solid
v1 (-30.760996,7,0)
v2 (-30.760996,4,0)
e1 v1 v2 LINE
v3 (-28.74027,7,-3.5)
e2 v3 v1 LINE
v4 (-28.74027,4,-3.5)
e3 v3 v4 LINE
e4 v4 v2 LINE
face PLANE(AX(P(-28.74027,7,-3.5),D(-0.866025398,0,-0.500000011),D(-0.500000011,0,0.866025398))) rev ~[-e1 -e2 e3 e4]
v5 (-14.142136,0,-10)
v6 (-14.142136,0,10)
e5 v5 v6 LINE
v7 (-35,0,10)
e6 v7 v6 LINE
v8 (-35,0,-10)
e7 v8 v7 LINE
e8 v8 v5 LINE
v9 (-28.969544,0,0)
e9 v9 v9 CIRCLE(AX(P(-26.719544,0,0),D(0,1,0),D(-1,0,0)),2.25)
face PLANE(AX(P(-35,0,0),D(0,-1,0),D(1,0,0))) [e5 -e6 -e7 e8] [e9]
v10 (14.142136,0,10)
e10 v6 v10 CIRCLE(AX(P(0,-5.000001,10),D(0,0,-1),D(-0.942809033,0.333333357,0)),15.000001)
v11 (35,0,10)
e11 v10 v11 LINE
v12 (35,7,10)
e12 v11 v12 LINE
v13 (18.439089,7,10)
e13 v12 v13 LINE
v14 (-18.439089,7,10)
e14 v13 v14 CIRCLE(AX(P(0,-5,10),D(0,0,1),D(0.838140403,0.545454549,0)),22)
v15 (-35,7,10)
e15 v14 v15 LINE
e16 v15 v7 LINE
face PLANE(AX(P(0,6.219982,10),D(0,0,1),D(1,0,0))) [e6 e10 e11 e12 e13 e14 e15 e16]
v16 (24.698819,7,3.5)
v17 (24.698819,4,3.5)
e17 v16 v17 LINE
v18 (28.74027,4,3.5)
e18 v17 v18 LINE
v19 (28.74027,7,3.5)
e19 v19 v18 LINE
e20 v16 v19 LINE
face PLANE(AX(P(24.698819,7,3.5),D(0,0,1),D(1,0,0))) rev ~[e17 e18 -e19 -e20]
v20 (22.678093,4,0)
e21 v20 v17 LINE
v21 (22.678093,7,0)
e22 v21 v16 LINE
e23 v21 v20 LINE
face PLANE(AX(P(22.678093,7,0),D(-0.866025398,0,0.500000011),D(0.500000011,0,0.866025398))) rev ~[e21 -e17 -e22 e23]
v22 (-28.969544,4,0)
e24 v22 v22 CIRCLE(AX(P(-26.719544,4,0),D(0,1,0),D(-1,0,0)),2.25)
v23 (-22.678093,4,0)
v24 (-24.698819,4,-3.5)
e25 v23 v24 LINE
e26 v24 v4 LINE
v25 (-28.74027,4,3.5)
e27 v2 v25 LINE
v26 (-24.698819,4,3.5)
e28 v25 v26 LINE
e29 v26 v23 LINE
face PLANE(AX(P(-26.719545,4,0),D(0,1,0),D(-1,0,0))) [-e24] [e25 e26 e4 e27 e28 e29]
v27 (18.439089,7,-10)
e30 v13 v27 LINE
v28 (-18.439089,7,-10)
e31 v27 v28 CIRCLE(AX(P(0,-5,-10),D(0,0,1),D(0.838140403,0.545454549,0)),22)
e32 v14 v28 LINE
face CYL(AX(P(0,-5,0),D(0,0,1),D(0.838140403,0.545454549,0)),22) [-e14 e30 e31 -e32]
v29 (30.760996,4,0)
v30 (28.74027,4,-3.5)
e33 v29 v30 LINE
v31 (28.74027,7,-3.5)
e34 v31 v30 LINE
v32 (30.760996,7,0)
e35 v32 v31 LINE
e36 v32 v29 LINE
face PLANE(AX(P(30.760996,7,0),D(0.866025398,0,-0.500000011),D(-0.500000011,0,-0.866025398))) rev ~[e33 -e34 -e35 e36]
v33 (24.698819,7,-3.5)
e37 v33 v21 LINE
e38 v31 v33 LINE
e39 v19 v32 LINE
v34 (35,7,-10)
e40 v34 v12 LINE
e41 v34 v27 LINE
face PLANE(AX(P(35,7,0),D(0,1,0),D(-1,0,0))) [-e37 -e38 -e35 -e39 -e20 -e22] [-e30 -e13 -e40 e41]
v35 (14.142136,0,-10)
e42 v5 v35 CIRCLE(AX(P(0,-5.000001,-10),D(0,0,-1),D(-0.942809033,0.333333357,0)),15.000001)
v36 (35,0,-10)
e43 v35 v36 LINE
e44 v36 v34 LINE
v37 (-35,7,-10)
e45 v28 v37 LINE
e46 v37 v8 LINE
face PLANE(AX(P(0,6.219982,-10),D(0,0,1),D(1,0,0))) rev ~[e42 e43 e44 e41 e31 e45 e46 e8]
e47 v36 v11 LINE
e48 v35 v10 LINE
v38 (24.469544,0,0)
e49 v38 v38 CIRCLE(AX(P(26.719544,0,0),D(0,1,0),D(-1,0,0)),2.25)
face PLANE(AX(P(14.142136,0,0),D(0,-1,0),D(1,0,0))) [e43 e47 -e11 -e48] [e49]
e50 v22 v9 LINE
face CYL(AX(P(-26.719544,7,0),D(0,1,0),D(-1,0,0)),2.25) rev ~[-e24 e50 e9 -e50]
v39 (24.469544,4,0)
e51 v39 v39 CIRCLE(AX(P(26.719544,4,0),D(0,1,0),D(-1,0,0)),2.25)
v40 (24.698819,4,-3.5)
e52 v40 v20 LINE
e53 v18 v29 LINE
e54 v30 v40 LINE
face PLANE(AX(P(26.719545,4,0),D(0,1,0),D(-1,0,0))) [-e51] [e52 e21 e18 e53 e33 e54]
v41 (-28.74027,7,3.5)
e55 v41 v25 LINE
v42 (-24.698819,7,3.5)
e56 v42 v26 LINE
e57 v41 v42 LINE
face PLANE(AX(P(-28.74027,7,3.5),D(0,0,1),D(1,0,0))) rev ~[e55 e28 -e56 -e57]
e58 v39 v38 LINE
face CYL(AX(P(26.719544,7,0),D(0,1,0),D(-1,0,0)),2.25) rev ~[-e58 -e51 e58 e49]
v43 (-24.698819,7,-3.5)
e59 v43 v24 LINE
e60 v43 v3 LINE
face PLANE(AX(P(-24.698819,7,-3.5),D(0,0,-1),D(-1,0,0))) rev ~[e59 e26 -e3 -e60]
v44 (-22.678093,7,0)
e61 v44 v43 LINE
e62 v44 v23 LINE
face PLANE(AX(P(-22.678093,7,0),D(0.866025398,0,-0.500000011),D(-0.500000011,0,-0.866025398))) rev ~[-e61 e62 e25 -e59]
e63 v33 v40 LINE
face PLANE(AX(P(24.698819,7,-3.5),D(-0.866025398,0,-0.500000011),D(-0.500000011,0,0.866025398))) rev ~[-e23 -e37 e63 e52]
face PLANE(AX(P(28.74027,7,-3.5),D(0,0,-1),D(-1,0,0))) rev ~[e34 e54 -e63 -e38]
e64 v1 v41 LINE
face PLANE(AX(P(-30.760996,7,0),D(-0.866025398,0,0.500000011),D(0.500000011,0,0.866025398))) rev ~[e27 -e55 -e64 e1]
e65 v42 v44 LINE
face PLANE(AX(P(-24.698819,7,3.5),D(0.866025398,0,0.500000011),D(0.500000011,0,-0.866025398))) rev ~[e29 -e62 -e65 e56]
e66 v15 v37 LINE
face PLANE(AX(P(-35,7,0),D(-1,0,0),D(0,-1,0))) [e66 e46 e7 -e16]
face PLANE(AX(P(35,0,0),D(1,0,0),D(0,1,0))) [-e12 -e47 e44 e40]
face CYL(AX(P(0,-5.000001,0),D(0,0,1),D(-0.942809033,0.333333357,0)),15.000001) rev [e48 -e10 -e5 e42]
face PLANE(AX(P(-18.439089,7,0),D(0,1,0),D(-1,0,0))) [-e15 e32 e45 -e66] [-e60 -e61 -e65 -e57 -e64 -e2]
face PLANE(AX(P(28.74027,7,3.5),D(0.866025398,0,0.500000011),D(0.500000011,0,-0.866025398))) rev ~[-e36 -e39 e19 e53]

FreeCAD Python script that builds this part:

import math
import FreeCAD as App
import Part
import Sketcher
Q = App.Units.Quantity


def add_polygon(sketch, points):
    """Adds a closed chain of lines whose ends are joined by coincident constraints."""
    first, n = sketch.GeometryCount, len(points)
    for a, b in zip(points, points[1:] + points[:1]):
        sketch.addGeometry(Part.LineSegment(App.Vector(*a, 0), App.Vector(*b, 0)), False)
    for i in range(n):
        sketch.addConstraint(Sketcher.Constraint("Coincident", first + i, 2, first + (i + 1) % n, 1))

doc = App.newDocument("Part")
body = doc.addObject("PartDesign::Body", "Body")

sketch1 = doc.addObject("Sketcher::SketchObject", "Sketch")
body.addObject(sketch1)
sketch1.AttachmentSupport = (doc.XY_Plane, [""])
sketch1.MapMode = "FlatFace"
sketch1.addGeometry([
    Part.LineSegment(App.Vector(-35, 7, 0), App.Vector(-35, 0, 0)),
    Part.LineSegment(App.Vector(-35, 0, 0), App.Vector(-14, 0, 0)),
    Part.ArcOfCircle(Part.Circle(App.Vector(0, -5, 0), App.Vector(0, 0, 1), 15), math.radians(19), math.radians(161)),
    Part.LineSegment(App.Vector(14, 0, 0), App.Vector(35, 0, 0)),
    Part.LineSegment(App.Vector(35, 0, 0), App.Vector(35, 7, 0)),
    Part.LineSegment(App.Vector(35, 7, 0), App.Vector(18, 7, 0)),
    Part.ArcOfCircle(Part.Circle(App.Vector(0, -5, 0), App.Vector(0, 0, 1), 22), math.radians(33), math.radians(147)),
    Part.LineSegment(App.Vector(-18, 7, 0), App.Vector(-35, 7, 0)),
], False)
sketch1.addConstraint([
    Sketcher.Constraint("Coincident", 0, 2, 1, 1),
    Sketcher.Constraint("Coincident", 1, 2, 2, 2),
    Sketcher.Constraint("Coincident", 2, 1, 3, 1),
    Sketcher.Constraint("Coincident", 3, 2, 4, 1),
    Sketcher.Constraint("Coincident", 4, 2, 5, 1),
    Sketcher.Constraint("Coincident", 5, 2, 6, 1),
    Sketcher.Constraint("Coincident", 6, 2, 7, 1),
    Sketcher.Constraint("Coincident", 7, 2, 0, 1),
    Sketcher.Constraint("Vertical", 0),
    Sketcher.Constraint("Horizontal", 1),
    Sketcher.Constraint("Horizontal", 3),
    Sketcher.Constraint("Vertical", 4),
    Sketcher.Constraint("Horizontal", 5),
    Sketcher.Constraint("Horizontal", 7),
    Sketcher.Constraint("Coincident", 6, 3, 2, 3),
    Sketcher.Constraint("Symmetric", 1, 2, 2, 1, -1, 1),
    Sketcher.Constraint("Symmetric", 0, 2, 3, 2, -2),
    Sketcher.Constraint("Horizontal", 5, 2, 6, 2),
    Sketcher.Constraint("Radius", 2, 15.000001),
    Sketcher.Constraint("Radius", 6, 22.0),
    Sketcher.Constraint("DistanceY", 0, 2, 0, 1, 7.0),
    Sketcher.Constraint("DistanceY", 2, 3, -1, 1, 5.000001),
    Sketcher.Constraint("DistanceX", 0, 2, -1, 1, 35.0),
])
pad1 = doc.addObject("PartDesign::Pad", "Pad")
body.addObject(pad1)
pad1.Profile = sketch1
pad1.Length = 20
pad1.Midplane = True

sketch2 = doc.addObject("Sketcher::SketchObject", "Sketch001")
body.addObject(sketch2)
sketch2.AttachmentSupport = (doc.XZ_Plane, [""])
sketch2.MapMode = "FlatFace"
sketch2.AttachmentOffset = App.Placement(App.Vector(0, 0, -7), App.Rotation())
sketch2.addGeometry([
    Part.Circle(App.Vector(26.7, 0, 0), App.Vector(0, 0, 1), 2.2),
    Part.Circle(App.Vector(-26.7, 0, 0), App.Vector(0, 0, 1), 2.2),
], False)
sketch2.addConstraint([
    Sketcher.Constraint("Equal", 0, 1),
    Sketcher.Constraint("Symmetric", 0, 3, 1, 3, -1, 1),
    Sketcher.Constraint("PointOnObject", 0, 3, -1),
    Sketcher.Constraint("Diameter", 0, 4.5),
    Sketcher.Constraint("DistanceX", -1, 1, 0, 3, 26.719544),
])
pocket1 = doc.addObject("PartDesign::Pocket", "Pocket")
body.addObject(pocket1)
pocket1.Profile = sketch2
pocket1.Length = 25
pocket1.Reversed = True

sketch3 = doc.addObject("Sketcher::SketchObject", "Sketch002")
body.addObject(sketch3)
sketch3.AttachmentSupport = (doc.XZ_Plane, [""])
sketch3.MapMode = "FlatFace"
sketch3.AttachmentOffset = App.Placement(App.Vector(0, 0, -7), App.Rotation())
add_polygon(sketch3, [(28.7, 3.5), (30.8, 0), (28.7, -3.5), (24.7, -3.5), (22.7, 0), (24.7, 3.5)])
sketch3.addGeometry(Part.Circle(App.Vector(26.7, 0, 0), App.Vector(0, 0, 1), 2.2), False)
add_polygon(sketch3, [(-28.7, -3.5), (-30.8, 0), (-28.7, 3.5), (-24.7, 3.5), (-22.7, 0), (-24.7, -3.5)])
sketch3.addConstraint([
    Sketcher.Constraint("Horizontal", 2),
    Sketcher.Constraint("Horizontal", 5),
    Sketcher.Constraint("Horizontal", 9),
    Sketcher.Constraint("Horizontal", 12),
    Sketcher.Constraint("Symmetric", 0, 2, 7, 2, -1, 1),
    Sketcher.Constraint("Symmetric", 1, 2, 8, 2, -1, 1),
    Sketcher.Constraint("Symmetric", 3, 2, 10, 2, -1, 1),
    Sketcher.Constraint("Symmetric", 4, 2, 11, 2, -1, 1),
    Sketcher.Constraint("Symmetric", 5, 2, 8, 2, -2),
    Sketcher.Constraint("PointOnObject", 6, 3, -1),
    Sketcher.Constraint("PointOnObject", 0, 2, -1),
    Sketcher.Constraint("PointOnObject", 3, 2, -1),
    Sketcher.Constraint("Parallel", 0, 3),
    Sketcher.Constraint("Parallel", 1, 4),
    Sketcher.Constraint("Parallel", 3, 7),
    Sketcher.Constraint("Parallel", 7, 10),
    Sketcher.Constraint("Diameter", 6, 4.5),
    Sketcher.Constraint("Angle", 0, Q("-59.999999 deg")),
    Sketcher.Constraint("DistanceY", 2, 2, 4, 2, 7.0),
    Sketcher.Constraint("DistanceX", 2, 2, 2, 1, 4.041451),
    Sketcher.Constraint("DistanceX", -1, 1, 1, 2, 28.74027),
    Sketcher.Constraint("DistanceX", 6, 3, 0, 2, 4.041452),
])
pocket2 = doc.addObject("PartDesign::Pocket", "Pocket001")
body.addObject(pocket2)
pocket2.Profile = sketch3
pocket2.Length = 3
pocket2.Reversed = True

doc.recompute()
